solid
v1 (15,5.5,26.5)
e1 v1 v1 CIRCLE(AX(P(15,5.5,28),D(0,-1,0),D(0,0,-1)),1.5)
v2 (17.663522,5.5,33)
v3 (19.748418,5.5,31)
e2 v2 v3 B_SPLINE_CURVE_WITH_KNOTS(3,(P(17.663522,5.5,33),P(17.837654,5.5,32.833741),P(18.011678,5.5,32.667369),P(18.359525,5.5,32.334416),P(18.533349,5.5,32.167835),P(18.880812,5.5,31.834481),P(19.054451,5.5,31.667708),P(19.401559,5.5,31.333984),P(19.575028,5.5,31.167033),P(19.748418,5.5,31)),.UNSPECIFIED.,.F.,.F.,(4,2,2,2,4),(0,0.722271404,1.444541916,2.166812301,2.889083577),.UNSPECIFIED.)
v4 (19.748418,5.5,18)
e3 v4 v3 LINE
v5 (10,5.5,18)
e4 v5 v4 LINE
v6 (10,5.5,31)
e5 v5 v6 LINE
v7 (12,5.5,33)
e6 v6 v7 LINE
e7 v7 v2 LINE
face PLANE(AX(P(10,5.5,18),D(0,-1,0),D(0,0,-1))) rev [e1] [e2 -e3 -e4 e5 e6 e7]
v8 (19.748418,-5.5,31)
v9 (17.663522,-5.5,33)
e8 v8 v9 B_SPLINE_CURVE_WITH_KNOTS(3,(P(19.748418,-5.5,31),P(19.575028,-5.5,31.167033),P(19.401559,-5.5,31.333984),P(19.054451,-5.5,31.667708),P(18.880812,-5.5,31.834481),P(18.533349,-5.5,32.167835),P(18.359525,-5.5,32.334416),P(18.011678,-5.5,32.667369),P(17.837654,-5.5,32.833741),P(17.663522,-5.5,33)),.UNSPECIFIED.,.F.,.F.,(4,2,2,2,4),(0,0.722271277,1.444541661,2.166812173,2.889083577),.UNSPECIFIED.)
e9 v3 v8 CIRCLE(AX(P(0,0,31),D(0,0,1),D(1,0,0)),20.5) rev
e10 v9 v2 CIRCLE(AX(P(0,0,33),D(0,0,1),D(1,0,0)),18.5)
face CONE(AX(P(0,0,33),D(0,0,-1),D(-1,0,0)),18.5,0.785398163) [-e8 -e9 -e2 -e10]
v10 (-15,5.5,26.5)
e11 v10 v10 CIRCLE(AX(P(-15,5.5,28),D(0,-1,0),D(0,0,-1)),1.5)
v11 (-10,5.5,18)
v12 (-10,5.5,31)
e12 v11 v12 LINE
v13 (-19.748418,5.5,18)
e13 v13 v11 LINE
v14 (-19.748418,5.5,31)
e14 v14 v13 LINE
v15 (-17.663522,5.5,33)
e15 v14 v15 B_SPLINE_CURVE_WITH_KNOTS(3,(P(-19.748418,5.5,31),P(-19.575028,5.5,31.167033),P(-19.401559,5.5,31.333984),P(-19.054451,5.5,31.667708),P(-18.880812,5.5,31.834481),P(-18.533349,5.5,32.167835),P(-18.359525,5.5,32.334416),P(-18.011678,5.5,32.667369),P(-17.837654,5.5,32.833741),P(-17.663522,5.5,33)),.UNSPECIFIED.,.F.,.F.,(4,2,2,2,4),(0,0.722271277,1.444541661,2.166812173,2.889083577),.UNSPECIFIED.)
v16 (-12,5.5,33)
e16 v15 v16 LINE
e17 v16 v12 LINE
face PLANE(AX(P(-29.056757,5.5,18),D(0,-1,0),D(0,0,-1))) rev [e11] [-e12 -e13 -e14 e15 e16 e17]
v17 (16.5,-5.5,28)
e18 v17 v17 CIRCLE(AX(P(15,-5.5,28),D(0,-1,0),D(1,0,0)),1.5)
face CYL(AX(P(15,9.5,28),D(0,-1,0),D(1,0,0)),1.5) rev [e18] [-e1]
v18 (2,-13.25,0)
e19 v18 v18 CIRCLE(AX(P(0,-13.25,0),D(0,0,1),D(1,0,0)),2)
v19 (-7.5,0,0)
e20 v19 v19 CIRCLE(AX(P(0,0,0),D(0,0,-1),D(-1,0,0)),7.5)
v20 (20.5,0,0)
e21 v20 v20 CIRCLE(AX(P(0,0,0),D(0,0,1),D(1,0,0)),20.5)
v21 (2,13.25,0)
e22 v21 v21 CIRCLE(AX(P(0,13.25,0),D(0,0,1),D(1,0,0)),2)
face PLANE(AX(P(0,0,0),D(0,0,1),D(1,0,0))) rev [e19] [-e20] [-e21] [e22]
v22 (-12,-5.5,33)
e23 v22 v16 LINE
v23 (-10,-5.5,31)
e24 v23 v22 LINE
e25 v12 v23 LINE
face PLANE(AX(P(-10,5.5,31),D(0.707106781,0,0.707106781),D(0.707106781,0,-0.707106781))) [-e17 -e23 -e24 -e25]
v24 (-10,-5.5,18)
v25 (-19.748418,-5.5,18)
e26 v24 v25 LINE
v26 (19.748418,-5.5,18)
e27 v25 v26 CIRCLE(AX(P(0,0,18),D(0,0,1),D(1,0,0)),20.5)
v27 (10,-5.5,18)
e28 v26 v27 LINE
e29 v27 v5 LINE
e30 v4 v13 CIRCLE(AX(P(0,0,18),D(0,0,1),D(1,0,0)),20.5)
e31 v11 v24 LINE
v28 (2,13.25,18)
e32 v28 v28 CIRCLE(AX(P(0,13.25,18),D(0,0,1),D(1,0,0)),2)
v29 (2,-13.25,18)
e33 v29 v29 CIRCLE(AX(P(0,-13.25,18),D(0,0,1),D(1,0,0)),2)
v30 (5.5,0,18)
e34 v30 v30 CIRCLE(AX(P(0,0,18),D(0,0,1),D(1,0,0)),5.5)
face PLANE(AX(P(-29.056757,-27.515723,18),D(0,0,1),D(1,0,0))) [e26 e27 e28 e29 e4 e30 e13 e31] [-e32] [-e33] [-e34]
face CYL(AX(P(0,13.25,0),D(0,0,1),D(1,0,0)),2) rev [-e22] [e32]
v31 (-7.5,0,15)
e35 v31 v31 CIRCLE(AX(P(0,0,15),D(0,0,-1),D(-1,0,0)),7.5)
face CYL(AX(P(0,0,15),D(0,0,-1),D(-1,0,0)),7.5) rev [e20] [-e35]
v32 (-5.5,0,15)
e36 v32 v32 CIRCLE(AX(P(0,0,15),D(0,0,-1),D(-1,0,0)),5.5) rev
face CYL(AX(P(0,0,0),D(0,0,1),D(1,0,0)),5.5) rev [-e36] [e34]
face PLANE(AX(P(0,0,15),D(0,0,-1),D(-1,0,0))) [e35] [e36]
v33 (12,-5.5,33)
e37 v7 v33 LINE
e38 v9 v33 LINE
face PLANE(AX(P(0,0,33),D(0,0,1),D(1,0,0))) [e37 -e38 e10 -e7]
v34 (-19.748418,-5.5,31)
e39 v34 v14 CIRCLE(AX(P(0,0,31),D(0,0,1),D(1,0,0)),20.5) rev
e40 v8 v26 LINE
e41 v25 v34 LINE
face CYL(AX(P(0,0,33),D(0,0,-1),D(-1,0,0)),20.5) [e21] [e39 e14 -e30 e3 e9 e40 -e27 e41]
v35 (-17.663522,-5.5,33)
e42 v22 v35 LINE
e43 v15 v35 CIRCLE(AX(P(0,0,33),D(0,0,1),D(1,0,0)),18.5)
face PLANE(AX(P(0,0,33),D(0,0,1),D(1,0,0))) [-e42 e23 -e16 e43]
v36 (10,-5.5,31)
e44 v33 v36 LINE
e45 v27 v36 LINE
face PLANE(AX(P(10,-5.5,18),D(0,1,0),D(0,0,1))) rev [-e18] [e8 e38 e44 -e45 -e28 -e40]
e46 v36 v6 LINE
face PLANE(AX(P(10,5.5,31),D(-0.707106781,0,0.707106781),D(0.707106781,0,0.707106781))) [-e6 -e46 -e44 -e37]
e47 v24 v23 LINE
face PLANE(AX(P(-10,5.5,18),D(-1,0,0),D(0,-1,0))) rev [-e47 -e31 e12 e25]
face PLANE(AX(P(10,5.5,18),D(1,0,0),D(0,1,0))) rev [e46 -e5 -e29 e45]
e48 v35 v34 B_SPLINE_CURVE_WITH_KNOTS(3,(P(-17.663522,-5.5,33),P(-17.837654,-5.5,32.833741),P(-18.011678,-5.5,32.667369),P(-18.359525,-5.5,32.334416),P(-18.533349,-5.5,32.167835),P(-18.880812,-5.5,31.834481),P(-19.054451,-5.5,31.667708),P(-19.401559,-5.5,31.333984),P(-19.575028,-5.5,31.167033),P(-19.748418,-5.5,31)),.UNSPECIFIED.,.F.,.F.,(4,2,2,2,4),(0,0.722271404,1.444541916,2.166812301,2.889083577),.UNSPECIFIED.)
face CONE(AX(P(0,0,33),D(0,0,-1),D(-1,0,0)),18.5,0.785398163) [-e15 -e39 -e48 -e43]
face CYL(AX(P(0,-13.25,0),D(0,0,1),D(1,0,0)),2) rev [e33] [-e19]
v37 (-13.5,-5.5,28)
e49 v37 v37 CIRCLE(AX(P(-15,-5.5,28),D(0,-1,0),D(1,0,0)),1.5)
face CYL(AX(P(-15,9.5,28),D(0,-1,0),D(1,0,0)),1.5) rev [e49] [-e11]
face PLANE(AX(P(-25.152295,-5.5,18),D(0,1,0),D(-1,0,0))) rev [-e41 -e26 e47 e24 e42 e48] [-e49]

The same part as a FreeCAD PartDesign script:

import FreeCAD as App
import Part
import Sketcher

V = App.Vector
Q = App.Units.Quantity


def edges_at(feature, points):
    """Names of the edges that pass closest to the given points."""
    edges = feature.Shape.Edges
    near = lambda p: min(range(len(edges)), key=lambda i: edges[i].distToShape(Part.Vertex(*p))[0])
    return sorted({f"Edge{near(p) + 1}" for p in points})


def add_polygon(sketch, points):
    """Adds a closed chain of lines whose ends are joined by coincident constraints."""
    first, n = sketch.GeometryCount, len(points)
    for a, b in zip(points, points[1:] + points[:1]):
        sketch.addGeometry(Part.LineSegment(App.Vector(*a, 0), App.Vector(*b, 0)), False)
    for i in range(n):
        sketch.addConstraint(Sketcher.Constraint("Coincident", first + i, 2, first + (i + 1) % n, 1))

doc = App.newDocument("Part")
params = doc.addObject("Spreadsheet::Sheet", "Params")
for row, (alias, value) in enumerate([
    ("sketch1_diameter", "41 mm"),
    ("pad1_length", "33 mm"),
    ("sketch2_height", "11 mm"),
    ("pocket1_length", "15 mm"),
    ("sketch3_diameter", "10 mm"),
    ("sketch3_diameter2", "4 mm"),
    ("chamfer_size", "2 mm"),
    ("sketch4_diameter", "3 mm"),
    ("pocket3_length", "15 mm"),
    ("sketch5_diameter", "11 mm"),
    ("sketch6_diameter", "15 mm"),
    ("pocket5_length", "15 mm"),
], start=1):
    params.set(f"A{row}", alias)
    params.set(f"B{row}", "=" + value)
    params.setAlias(f"B{row}", alias)

body = doc.addObject("PartDesign::Body", "Body")

# Sketch on XY plane
sketch1 = body.newObject("Sketcher::SketchObject", "Sketch")
sketch1.AttachmentSupport = (doc.getObject("XY_Plane"), [""])
sketch1.MapMode = "FlatFace"
sketch1.addGeometry(Part.Circle(V(0, 0, 0), V(0, 0, 1), 20), False)
sketch1.addConstraint([
    Sketcher.Constraint("Coincident", 0, 3, -1, 1),
    Sketcher.Constraint("Diameter", 0, Q("41 mm")),
])
sketch1.setExpression("Constraints[1]", "Params.sketch1_diameter")
pad1 = body.newObject("PartDesign::Pad", "Pad")
pad1.Profile = sketch1
pad1.setExpression("Length", "Params.pad1_length")

# Sketch on XY plane
sketch2 = body.newObject("Sketcher::SketchObject", "Sketch001")
sketch2.AttachmentSupport = (doc.getObject("XY_Plane"), [""])
sketch2.MapMode = "FlatFace"
sketch2.AttachmentOffset = App.Placement(V(0, 0, 33), App.Rotation())
add_polygon(sketch2, [(10, 6), (24, 6), (24, 27), (-29, 27), (-29, 6), (-10, 6), (-10, -6), (-25, -6), (-25, -28), (26, -28), (26, -6), (10, -6)])  # lines 0-11
sketch2.addConstraint([
    Sketcher.Constraint("Horizontal", 0),
    Sketcher.Constraint("Vertical", 1),
    Sketcher.Constraint("Horizontal", 2),
    Sketcher.Constraint("Vertical", 3),
    Sketcher.Constraint("Horizontal", 4),
    Sketcher.Constraint("Vertical", 5),
    Sketcher.Constraint("Horizontal", 6),
    Sketcher.Constraint("Vertical", 7),
    Sketcher.Constraint("Horizontal", 8),
    Sketcher.Constraint("Vertical", 9),
    Sketcher.Constraint("Horizontal", 10),
    Sketcher.Constraint("Vertical", 11),
    Sketcher.Constraint("Symmetric", 4, 2, 10, 2, -1, 1),
    Sketcher.Constraint("Horizontal", 0, 2, 3, 2),
    Sketcher.Constraint("Horizontal", 6, 2, 9, 2),
    Sketcher.Constraint("DistanceY", 5, 2, 5, 1, Q("11 mm")),
    Sketcher.Constraint("DistanceX", 4, 2, -1, 1, Q("10 mm")),
    Sketcher.Constraint("DistanceX", 2, 2, 2, 1, Q("53.459119 mm")),
    Sketcher.Constraint("DistanceX", 10, 2, 10, 1, Q("15.537932 mm")),
    Sketcher.Constraint("DistanceX", 0, 1, 0, 2, Q("14.402362 mm")),
    Sketcher.Constraint("DistanceX", 6, 2, 6, 1, Q("15.152295 mm")),
    Sketcher.Constraint("DistanceY", 1, 1, 1, 2, Q("21.666317 mm")),
    Sketcher.Constraint("DistanceY", 7, 2, 7, 1, Q("22.015723 mm")),
])
sketch2.setExpression("Constraints[27]", "Params.sketch2_height")
pocket1 = body.newObject("PartDesign::Pocket", "Pocket")
pocket1.Profile = sketch2
pocket1.setExpression("Length", "Params.pocket1_length")

# Sketch on XY plane
sketch3 = body.newObject("Sketcher::SketchObject", "Sketch002")
sketch3.AttachmentSupport = (doc.getObject("XY_Plane"), [""])
sketch3.MapMode = "FlatFace"
sketch3.AttachmentOffset = App.Placement(V(0, 0, 18), App.Rotation())
sketch3.addGeometry([
    Part.Circle(V(0, 0, 0), V(0, 0, 1), 5),
    Part.Circle(V(0, 13.2, 0), V(0, 0, 1), 2),
    Part.Circle(V(0, -13.2, 0), V(0, 0, 1), 2),
], False)
sketch3.addConstraint([
    Sketcher.Constraint("Coincident", 0, 3, -1, 1),
    Sketcher.Constraint("Equal", 1, 2),
    Sketcher.Constraint("Symmetric", 1, 3, 2, 3, -1, 1),
    Sketcher.Constraint("PointOnObject", 1, 3, -2),
    Sketcher.Constraint("Diameter", 0, Q("10 mm")),
    Sketcher.Constraint("Diameter", 1, Q("4 mm")),
    Sketcher.Constraint("DistanceY", 2, 3, 1, 3, Q("26.5 mm")),
])
sketch3.setExpression("Constraints[4]", "Params.sketch3_diameter")
sketch3.setExpression("Constraints[5]", "Params.sketch3_diameter2")
pocket2 = body.newObject("PartDesign::Pocket", "Pocket001")
pocket2.Profile = sketch3
pocket2.Type = "ThroughAll"
doc.recompute()

chamfer = body.newObject("PartDesign::Chamfer", "Chamfer")
chamfer.Base = (pocket2, edges_at(pocket2, [
    (-10, 0, 33),
    (10, 0, 33),
    (-20.5, 0, 33),
    (20.311, -2.776, 33),
]))
chamfer.setExpression("Size", "Params.chamfer_size")

# Sketch on XZ plane
sketch4 = body.newObject("Sketcher::SketchObject", "Sketch003")
sketch4.AttachmentSupport = (doc.getObject("XZ_Plane"), [""])
sketch4.MapMode = "FlatFace"
sketch4.AttachmentOffset = App.Placement(V(0, 0, 5.5), App.Rotation())
sketch4.addGeometry([
    Part.Circle(V(-15, 28, 0), V(0, 0, 1), 1.5),
    Part.Circle(V(15, 28, 0), V(0, 0, 1), 1.5),
], False)
sketch4.addConstraint([
    Sketcher.Constraint("Equal", 0, 1),
    Sketcher.Constraint("Symmetric", 0, 3, 1, 3, -2),
    Sketcher.Constraint("Diameter", 0, Q("3 mm")),
    Sketcher.Constraint("DistanceX", 0, 3, -1, 1, Q("15 mm")),
    Sketcher.Constraint("DistanceY", -1, 1, 0, 3, Q("28 mm")),
])
sketch4.setExpression("Constraints[2]", "Params.sketch4_diameter")
pocket3 = body.newObject("PartDesign::Pocket", "Pocket002")
pocket3.Profile = sketch4
pocket3.setExpression("Length", "Params.pocket3_length")

# Sketch on XY plane
sketch5 = body.newObject("Sketcher::SketchObject", "Sketch004")
sketch5.AttachmentSupport = (doc.getObject("XY_Plane"), [""])
sketch5.MapMode = "FlatFace"
sketch5.AttachmentOffset = App.Placement(V(0, 0, 18), App.Rotation())
sketch5.addGeometry(Part.Circle(V(0, 0, 0), V(0, 0, 1), 6), False)
sketch5.addConstraint([
    Sketcher.Constraint("Coincident", 0, 3, -1, 1),
    Sketcher.Constraint("Diameter", 0, Q("11 mm")),
])
sketch5.setExpression("Constraints[1]", "Params.sketch5_diameter")
pocket4 = body.newObject("PartDesign::Pocket", "Pocket003")
pocket4.Profile = sketch5
pocket4.Type = "ThroughAll"

# Sketch on XY plane
sketch6 = body.newObject("Sketcher::SketchObject", "Sketch005")
sketch6.AttachmentSupport = (doc.getObject("XY_Plane"), [""])
sketch6.MapMode = "FlatFace"
sketch6.addGeometry(Part.Circle(V(0, 0, 0), V(0, 0, 1), 8), False)
sketch6.addConstraint([
    Sketcher.Constraint("Coincident", 0, 3, -1, 1),
    Sketcher.Constraint("Diameter", 0, Q("15 mm")),
])
sketch6.setExpression("Constraints[1]", "Params.sketch6_diameter")
pocket5 = body.newObject("PartDesign::Pocket", "Pocket004")
pocket5.Profile = sketch6
pocket5.setExpression("Length", "Params.pocket5_length")
pocket5.Reversed = True

doc.recompute()
